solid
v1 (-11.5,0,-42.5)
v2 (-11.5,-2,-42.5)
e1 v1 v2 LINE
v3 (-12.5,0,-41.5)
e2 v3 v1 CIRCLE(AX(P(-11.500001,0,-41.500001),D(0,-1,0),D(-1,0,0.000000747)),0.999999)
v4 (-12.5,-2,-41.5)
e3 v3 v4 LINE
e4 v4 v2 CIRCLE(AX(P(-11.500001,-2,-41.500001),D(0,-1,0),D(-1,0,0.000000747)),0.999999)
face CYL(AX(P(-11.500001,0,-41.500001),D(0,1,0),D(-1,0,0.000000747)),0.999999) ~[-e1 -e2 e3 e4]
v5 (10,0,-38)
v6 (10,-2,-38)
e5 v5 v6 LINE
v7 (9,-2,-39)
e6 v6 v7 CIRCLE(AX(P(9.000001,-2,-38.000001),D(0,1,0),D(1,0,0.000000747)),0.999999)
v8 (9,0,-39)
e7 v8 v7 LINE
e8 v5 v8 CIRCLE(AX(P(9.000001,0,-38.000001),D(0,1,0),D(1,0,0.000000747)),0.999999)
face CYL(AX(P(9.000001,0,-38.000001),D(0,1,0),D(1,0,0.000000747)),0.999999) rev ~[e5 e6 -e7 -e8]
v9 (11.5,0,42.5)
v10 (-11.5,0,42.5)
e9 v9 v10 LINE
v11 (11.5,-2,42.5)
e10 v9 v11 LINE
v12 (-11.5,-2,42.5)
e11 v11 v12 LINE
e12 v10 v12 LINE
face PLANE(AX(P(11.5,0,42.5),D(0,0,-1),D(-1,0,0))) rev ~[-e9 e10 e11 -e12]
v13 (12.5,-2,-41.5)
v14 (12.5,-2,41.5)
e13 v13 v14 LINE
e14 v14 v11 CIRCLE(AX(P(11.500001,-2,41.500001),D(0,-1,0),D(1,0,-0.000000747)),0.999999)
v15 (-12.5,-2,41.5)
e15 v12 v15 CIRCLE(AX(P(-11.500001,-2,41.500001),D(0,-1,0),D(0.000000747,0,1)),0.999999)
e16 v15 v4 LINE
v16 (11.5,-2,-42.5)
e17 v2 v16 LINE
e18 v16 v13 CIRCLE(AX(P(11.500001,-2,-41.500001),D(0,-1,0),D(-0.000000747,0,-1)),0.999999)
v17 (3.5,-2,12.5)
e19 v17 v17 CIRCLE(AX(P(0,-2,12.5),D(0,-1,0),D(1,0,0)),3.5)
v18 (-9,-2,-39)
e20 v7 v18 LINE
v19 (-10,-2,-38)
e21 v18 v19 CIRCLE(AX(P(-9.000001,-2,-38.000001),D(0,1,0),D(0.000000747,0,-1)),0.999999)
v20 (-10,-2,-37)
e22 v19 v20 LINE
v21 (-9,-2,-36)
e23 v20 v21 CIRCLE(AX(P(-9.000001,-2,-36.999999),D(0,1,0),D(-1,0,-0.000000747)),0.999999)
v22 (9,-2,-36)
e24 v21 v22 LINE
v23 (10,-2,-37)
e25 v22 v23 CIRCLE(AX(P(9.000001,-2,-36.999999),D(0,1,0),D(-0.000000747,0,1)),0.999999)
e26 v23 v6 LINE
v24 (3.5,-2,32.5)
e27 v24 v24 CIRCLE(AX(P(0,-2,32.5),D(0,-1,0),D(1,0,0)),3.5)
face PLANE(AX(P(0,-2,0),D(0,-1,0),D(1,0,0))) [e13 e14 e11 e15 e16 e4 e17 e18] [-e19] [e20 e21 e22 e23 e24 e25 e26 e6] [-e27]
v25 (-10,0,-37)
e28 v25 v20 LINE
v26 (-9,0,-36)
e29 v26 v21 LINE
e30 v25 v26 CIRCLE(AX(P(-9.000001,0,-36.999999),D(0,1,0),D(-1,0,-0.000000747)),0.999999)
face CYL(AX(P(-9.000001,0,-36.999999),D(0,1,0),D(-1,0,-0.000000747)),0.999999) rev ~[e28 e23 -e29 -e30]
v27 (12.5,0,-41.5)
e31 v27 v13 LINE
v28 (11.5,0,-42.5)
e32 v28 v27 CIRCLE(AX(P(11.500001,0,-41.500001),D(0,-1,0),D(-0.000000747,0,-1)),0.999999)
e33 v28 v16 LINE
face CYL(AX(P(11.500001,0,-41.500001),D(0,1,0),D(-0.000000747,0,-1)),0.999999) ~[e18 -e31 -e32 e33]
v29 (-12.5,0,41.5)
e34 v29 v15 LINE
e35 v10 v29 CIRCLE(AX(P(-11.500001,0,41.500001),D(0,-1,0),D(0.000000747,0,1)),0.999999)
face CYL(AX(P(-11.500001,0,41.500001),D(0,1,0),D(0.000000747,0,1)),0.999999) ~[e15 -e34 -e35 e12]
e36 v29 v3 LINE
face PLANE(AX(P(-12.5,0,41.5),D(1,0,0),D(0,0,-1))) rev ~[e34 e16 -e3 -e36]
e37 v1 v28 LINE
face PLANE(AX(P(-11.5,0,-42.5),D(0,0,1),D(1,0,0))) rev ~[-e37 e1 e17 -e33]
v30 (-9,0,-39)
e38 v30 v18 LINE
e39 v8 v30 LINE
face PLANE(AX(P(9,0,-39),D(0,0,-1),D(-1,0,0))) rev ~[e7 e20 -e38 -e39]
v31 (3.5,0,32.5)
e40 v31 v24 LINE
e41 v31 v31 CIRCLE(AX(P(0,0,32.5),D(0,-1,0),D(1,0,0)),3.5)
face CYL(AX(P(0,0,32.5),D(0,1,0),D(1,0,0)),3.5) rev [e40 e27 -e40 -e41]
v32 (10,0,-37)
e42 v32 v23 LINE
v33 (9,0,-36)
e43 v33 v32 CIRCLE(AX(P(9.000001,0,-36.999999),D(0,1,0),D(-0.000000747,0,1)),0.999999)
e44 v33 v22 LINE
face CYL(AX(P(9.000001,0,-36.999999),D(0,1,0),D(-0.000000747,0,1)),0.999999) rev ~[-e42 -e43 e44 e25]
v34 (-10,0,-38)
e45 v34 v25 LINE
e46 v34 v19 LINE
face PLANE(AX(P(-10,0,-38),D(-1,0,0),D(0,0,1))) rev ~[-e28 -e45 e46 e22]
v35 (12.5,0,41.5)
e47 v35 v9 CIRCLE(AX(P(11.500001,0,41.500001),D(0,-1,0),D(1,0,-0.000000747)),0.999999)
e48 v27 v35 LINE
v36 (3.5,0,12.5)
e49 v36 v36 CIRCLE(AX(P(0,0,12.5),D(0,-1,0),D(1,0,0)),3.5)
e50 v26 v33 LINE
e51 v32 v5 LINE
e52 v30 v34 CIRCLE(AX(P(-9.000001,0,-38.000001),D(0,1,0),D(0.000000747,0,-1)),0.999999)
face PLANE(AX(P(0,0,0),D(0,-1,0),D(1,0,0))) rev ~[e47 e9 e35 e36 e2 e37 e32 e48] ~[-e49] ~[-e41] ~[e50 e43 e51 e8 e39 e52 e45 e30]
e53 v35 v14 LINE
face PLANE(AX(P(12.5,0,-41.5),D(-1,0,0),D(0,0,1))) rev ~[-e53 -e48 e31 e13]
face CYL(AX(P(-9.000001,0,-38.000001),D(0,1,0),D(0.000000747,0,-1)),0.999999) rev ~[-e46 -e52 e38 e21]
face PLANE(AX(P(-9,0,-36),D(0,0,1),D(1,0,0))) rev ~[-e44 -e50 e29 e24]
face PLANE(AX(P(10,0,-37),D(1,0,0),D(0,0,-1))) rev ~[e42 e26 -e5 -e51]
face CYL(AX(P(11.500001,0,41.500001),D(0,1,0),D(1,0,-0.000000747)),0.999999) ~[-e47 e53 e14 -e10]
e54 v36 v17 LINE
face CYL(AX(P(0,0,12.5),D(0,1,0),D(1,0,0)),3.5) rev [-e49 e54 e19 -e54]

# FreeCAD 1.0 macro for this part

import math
import FreeCAD as App
import Part
import Sketcher
Q = App.Units.Quantity

doc = App.newDocument("Part")
params = doc.addObject("Spreadsheet::Sheet", "Params")
for row, (alias, value) in enumerate([
    ("sketch1_diameter", "7 mm"),
    ("sketch1_radius", "0.999999 mm"),
    ("sketch1_width", "23 mm"),
    ("sketch1_width2", "18 mm"),
    ("sketch1_height", "83 mm"),
    ("pad1_length", "2 mm"),
], start=1):
    params.set(f"A{row}", alias)
    params.set(f"B{row}", "=" + value)
    params.setAlias(f"B{row}", alias)

body = doc.addObject("PartDesign::Body", "Body")

# Sketch on XZ plane
sketch1 = body.newObject("Sketcher::SketchObject", "Sketch")
sketch1.AttachmentSupport = (doc.getObject("XZ_Plane"), [""])
sketch1.MapMode = "FlatFace"
sketch1.addGeometry([
    Part.LineSegment(App.Vector(-11.5, -42.5, 0), App.Vector(11.5, -42.5, 0)),  # 0
    Part.ArcOfCircle(Part.Circle(App.Vector(11.5, -41.5, 0), App.Vector(0, 0, 1), 1), math.radians(-90), math.radians(0)),  # 1
    Part.LineSegment(App.Vector(12.5, -41.5, 0), App.Vector(12.5, 41.5, 0)),  # 2
    Part.ArcOfCircle(Part.Circle(App.Vector(11.5, 41.5, 0), App.Vector(0, 0, 1), 1), math.radians(0), math.radians(90)),  # 3
    Part.LineSegment(App.Vector(11.5, 42.5, 0), App.Vector(-11.5, 42.5, 0)),  # 4
    Part.ArcOfCircle(Part.Circle(App.Vector(-11.5, 41.5, 0), App.Vector(0, 0, 1), 1), math.radians(90), math.radians(180)),  # 5
    Part.LineSegment(App.Vector(-12.5, 41.5, 0), App.Vector(-12.5, -41.5, 0)),  # 6
    Part.ArcOfCircle(Part.Circle(App.Vector(-11.5, -41.5, 0), App.Vector(0, 0, 1), 1), math.radians(180), math.radians(270)),  # 7
    Part.LineSegment(App.Vector(10, -37, 0), App.Vector(10, -38, 0)),  # 8
    Part.ArcOfCircle(Part.Circle(App.Vector(9, -38, 0), App.Vector(0, 0, 1), 1), math.radians(-90), math.radians(0)),  # 9
    Part.LineSegment(App.Vector(9, -39, 0), App.Vector(-9, -39, 0)),  # 10
    Part.ArcOfCircle(Part.Circle(App.Vector(-9, -38, 0), App.Vector(0, 0, 1), 1), math.radians(180), math.radians(270)),  # 11
    Part.LineSegment(App.Vector(-10, -38, 0), App.Vector(-10, -37, 0)),  # 12
    Part.ArcOfCircle(Part.Circle(App.Vector(-9, -37, 0), App.Vector(0, 0, 1), 1), math.radians(90), math.radians(180)),  # 13
    Part.LineSegment(App.Vector(-9, -36, 0), App.Vector(9, -36, 0)),  # 14
    Part.ArcOfCircle(Part.Circle(App.Vector(9, -37, 0), App.Vector(0, 0, 1), 1), math.radians(0), math.radians(90)),  # 15
    Part.Circle(App.Vector(0, 12.5, 0), App.Vector(0, 0, 1), 3.5),  # 16
    Part.Circle(App.Vector(0, 32.5, 0), App.Vector(0, 0, 1), 3.5),  # 17
], False)
sketch1.addConstraint([
    Sketcher.Constraint("Tangent", 0, 2, 1, 1),
    Sketcher.Constraint("Tangent", 1, 2, 2, 1),
    Sketcher.Constraint("Tangent", 2, 2, 3, 1),
    Sketcher.Constraint("Tangent", 3, 2, 4, 1),
    Sketcher.Constraint("Tangent", 4, 2, 5, 1),
    Sketcher.Constraint("Tangent", 5, 2, 6, 1),
    Sketcher.Constraint("Tangent", 6, 2, 7, 1),
    Sketcher.Constraint("Tangent", 7, 2, 0, 1),
    Sketcher.Constraint("Tangent", 8, 2, 9, 2),
    Sketcher.Constraint("Tangent", 9, 1, 10, 1),
    Sketcher.Constraint("Tangent", 10, 2, 11, 2),
    Sketcher.Constraint("Tangent", 11, 1, 12, 1),
    Sketcher.Constraint("Tangent", 12, 2, 13, 2),
    Sketcher.Constraint("Tangent", 13, 1, 14, 1),
    Sketcher.Constraint("Tangent", 14, 2, 15, 2),
    Sketcher.Constraint("Tangent", 15, 1, 8, 1),
    Sketcher.Constraint("Horizontal", 0),
    Sketcher.Constraint("Vertical", 2),
    Sketcher.Constraint("Horizontal", 4),
    Sketcher.Constraint("Vertical", 6),
    Sketcher.Constraint("Vertical", 8),
    Sketcher.Constraint("Horizontal", 10),
    Sketcher.Constraint("Vertical", 12),
    Sketcher.Constraint("Horizontal", 14),
    Sketcher.Constraint("Equal", 1, 3),
    Sketcher.Constraint("Equal", 3, 5),
    Sketcher.Constraint("Equal", 5, 7),
    Sketcher.Constraint("Equal", 7, 9),
    Sketcher.Constraint("Equal", 9, 11),
    Sketcher.Constraint("Equal", 11, 13),
    Sketcher.Constraint("Equal", 13, 15),
    Sketcher.Constraint("Equal", 16, 17),
    Sketcher.Constraint("Symmetric", 1, 3, 5, 3, -1, 1),
    Sketcher.Constraint("PointOnObject", 16, 3, -2),
    Sketcher.Constraint("PointOnObject", 17, 3, -2),
    Sketcher.Constraint("Diameter", 16, Q("7 mm")),
    Sketcher.Constraint("Radius", 1, Q("0.999999 mm")),
    Sketcher.Constraint("DistanceX", 0, 1, 0, 2, Q("23 mm")),
    Sketcher.Constraint("DistanceX", 10, 2, 10, 1, Q("18 mm")),
    Sketcher.Constraint("DistanceY", 2, 1, 2, 2, Q("83 mm")),
    Sketcher.Constraint("DistanceY", 8, 2, 8, 1, Q("1 mm")),
    Sketcher.Constraint("DistanceX", -1, 1, 9, 3, Q("9.000001 mm")),
    Sketcher.Constraint("DistanceY", 9, 3, -1, 1, Q("38.000001 mm")),
    Sketcher.Constraint("DistanceY", 16, 3, 3, 3, Q("29.000001 mm")),
    Sketcher.Constraint("DistanceY", 17, 3, 3, 3, Q("9.000001 mm")),
])
sketch1.setExpression("Constraints[35]", "Params.sketch1_diameter")
sketch1.setExpression("Constraints[36]", "Params.sketch1_radius")
sketch1.setExpression("Constraints[37]", "Params.sketch1_width")
sketch1.setExpression("Constraints[38]", "Params.sketch1_width2")
sketch1.setExpression("Constraints[39]", "Params.sketch1_height")
pad1 = body.newObject("PartDesign::Pad", "Pad")
pad1.Profile = sketch1
pad1.setExpression("Length", "Params.pad1_length")

doc.recompute()
